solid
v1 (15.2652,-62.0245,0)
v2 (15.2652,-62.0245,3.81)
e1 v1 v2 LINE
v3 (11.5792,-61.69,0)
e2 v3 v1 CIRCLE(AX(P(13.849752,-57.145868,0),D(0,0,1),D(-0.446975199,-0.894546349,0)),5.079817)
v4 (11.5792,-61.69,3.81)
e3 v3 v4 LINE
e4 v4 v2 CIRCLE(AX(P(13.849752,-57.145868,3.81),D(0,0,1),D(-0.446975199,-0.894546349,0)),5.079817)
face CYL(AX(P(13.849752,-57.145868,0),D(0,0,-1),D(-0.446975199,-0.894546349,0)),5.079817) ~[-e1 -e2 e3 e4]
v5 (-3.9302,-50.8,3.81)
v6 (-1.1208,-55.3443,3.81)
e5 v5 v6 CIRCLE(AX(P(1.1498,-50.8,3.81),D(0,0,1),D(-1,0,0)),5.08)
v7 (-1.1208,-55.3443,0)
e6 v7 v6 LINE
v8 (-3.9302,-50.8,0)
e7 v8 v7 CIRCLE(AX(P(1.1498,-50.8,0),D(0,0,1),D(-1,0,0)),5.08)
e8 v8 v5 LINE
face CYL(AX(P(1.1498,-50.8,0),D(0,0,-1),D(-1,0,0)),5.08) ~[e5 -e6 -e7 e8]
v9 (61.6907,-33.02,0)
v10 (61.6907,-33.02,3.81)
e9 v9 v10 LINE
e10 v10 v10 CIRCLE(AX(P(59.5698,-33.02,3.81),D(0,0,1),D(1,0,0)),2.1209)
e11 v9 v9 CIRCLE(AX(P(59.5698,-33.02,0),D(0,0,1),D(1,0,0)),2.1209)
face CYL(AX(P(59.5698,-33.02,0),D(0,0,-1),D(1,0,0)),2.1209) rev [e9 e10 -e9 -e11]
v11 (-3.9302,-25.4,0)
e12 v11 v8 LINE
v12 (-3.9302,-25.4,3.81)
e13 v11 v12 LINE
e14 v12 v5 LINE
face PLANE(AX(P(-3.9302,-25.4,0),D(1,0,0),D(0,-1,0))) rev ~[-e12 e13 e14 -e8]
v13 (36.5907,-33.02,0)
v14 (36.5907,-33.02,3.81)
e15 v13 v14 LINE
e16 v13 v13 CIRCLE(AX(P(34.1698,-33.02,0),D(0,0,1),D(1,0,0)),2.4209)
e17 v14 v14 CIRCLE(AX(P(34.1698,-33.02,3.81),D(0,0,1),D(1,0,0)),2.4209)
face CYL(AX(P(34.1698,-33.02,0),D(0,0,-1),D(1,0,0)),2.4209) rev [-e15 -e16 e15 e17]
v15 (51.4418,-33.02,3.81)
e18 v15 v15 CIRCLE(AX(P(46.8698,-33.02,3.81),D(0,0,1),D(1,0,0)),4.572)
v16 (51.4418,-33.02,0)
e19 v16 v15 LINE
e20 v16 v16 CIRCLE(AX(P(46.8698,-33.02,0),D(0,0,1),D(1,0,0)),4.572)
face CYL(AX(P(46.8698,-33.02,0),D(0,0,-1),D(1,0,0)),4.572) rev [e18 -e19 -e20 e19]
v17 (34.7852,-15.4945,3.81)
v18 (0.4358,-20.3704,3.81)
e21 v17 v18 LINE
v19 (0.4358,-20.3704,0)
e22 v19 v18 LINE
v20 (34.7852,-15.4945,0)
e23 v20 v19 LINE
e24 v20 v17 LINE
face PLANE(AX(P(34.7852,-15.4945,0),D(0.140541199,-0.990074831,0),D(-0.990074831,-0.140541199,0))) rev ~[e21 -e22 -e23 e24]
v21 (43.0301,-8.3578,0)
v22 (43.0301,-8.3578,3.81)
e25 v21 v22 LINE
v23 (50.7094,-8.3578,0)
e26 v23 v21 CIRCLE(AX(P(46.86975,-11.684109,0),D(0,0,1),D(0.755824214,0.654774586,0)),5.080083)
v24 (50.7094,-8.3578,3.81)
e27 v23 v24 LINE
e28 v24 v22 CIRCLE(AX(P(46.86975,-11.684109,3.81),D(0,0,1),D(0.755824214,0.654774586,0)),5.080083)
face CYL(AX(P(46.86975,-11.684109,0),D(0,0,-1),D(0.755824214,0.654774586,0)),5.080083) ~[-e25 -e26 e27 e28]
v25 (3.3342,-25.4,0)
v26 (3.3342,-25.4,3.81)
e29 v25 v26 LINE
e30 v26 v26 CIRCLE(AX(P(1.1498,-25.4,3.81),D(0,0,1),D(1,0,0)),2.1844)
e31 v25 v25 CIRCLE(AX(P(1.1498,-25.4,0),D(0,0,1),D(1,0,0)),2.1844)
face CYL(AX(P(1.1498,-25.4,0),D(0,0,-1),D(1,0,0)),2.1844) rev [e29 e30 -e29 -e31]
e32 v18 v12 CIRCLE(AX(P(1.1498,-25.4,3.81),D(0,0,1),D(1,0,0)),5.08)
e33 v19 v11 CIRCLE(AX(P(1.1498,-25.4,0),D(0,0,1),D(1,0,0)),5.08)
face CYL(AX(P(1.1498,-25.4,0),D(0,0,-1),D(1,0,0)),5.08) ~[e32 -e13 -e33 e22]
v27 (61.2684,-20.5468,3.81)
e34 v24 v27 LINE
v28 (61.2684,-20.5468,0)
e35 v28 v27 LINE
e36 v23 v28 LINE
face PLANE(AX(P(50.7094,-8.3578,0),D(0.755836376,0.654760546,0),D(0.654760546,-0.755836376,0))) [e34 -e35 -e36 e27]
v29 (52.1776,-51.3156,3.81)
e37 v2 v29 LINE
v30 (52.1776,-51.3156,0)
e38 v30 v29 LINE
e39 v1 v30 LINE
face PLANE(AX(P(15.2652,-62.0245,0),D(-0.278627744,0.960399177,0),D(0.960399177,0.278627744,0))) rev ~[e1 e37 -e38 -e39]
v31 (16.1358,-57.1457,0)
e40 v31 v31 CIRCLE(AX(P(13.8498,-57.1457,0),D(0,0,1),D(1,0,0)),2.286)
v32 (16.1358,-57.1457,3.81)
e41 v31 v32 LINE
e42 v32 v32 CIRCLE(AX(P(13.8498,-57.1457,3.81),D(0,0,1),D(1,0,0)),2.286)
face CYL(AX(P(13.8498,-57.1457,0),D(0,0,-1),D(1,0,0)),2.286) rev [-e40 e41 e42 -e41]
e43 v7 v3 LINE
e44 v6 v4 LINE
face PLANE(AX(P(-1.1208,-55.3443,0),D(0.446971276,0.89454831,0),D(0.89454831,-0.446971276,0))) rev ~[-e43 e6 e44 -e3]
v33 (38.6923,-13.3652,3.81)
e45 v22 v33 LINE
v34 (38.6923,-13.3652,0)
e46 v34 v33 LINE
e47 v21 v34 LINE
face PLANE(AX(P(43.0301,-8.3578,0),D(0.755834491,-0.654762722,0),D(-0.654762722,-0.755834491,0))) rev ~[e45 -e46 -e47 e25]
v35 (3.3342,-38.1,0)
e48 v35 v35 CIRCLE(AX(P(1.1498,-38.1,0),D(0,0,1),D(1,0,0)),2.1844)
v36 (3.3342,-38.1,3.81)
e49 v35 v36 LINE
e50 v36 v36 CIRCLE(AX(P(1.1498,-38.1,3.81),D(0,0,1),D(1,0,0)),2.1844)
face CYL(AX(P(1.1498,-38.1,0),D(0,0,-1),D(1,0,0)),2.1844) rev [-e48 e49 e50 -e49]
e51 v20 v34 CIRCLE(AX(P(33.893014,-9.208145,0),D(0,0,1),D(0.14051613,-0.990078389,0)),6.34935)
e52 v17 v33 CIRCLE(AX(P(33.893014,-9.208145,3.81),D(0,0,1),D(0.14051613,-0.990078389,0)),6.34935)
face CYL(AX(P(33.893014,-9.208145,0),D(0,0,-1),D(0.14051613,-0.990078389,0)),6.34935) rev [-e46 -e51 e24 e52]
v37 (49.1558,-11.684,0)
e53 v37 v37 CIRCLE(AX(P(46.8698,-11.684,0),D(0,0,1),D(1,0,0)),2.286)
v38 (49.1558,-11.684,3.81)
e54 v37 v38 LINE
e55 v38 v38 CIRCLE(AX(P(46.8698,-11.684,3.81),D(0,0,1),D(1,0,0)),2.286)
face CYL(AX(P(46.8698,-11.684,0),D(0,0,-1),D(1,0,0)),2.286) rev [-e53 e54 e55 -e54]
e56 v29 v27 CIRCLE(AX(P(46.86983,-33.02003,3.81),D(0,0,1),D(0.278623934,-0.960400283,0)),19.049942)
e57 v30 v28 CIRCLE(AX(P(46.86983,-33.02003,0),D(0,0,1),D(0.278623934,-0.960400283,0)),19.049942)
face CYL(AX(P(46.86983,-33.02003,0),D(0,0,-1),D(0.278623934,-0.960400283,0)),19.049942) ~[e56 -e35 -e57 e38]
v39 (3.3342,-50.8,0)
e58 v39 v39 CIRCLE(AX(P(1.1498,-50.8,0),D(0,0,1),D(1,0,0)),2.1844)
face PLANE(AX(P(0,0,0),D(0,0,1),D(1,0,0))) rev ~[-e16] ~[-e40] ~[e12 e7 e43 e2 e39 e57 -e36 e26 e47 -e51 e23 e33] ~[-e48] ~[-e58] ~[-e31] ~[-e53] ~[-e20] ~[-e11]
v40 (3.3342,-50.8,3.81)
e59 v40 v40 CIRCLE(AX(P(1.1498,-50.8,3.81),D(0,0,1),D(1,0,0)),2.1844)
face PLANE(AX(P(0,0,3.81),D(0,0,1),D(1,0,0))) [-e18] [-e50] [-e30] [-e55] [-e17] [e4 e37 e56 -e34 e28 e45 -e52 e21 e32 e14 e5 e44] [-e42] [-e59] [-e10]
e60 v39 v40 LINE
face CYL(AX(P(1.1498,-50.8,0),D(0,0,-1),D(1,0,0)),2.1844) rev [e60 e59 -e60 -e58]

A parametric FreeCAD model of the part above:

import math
import FreeCAD as App
import Part
import Sketcher
Q = App.Units.Quantity

doc = App.newDocument("Part")
body = doc.addObject("PartDesign::Body", "Body")

# Sketch on XY plane
sketch1 = body.newObject("Sketcher::SketchObject", "Sketch")
sketch1.AttachmentSupport = (doc.getObject("XY_Plane"), [""])
sketch1.MapMode = "FlatFace"
sketch1.addGeometry([
    Part.ArcOfCircle(Part.Circle(App.Vector(1.1498, -25.4, 0), App.Vector(0, 0, 1), 5.08), math.radians(98.079699), math.radians(180)),  # 0
    Part.LineSegment(App.Vector(-3.9302, -25.4, 0), App.Vector(-3.9302, -50.8, 0)),  # 1
    Part.ArcOfCircle(Part.Circle(App.Vector(1.1498, -50.8, 0), App.Vector(0, 0, 1), 5.08), math.radians(180), math.radians(243.450585)),  # 2
    Part.LineSegment(App.Vector(-1.1208, -55.3443, 0), App.Vector(11.5792, -61.69, 0)),  # 3
    Part.ArcOfCircle(Part.Circle(App.Vector(13.8498, -57.1457, 0), App.Vector(0, 0, 1), 5.079965), math.radians(-116.549415), math.radians(-73.821905)),  # 4
    Part.LineSegment(App.Vector(15.2652, -62.0245, 0), App.Vector(52.1776, -51.3156, 0)),  # 5
    Part.ArcOfCircle(Part.Circle(App.Vector(46.8698, -33.02, 0), App.Vector(0, 0, 1), 19.049945), math.radians(-73.821844), math.radians(40.901686)),  # 6
    Part.LineSegment(App.Vector(61.2684, -20.5468, 0), App.Vector(50.7094, -8.3578, 0)),  # 7
    Part.ArcOfCircle(Part.Circle(App.Vector(46.8698, -11.684, 0), App.Vector(0, 0, 1), 5.080049), math.radians(40.901996), math.radians(139.098742)),  # 8
    Part.LineSegment(App.Vector(43.0301, -8.3578, 0), App.Vector(38.6923, -13.3652, 0)),  # 9
    Part.ArcOfCircle(Part.Circle(App.Vector(33.8928, -9.2075, 0), App.Vector(0, 0, 1), 6.350019), math.radians(-81.921194), math.radians(-40.901655)),  # 10
    Part.LineSegment(App.Vector(34.7852, -15.4945, 0), App.Vector(0.4358, -20.3704, 0)),  # 11
    Part.Circle(App.Vector(1.1498, -50.8, 0), App.Vector(0, 0, 1), 2.1844),  # 12
    Part.Circle(App.Vector(1.1498, -38.1, 0), App.Vector(0, 0, 1), 2.1844),  # 13
    Part.Circle(App.Vector(1.1498, -25.4, 0), App.Vector(0, 0, 1), 2.1844),  # 14
    Part.Circle(App.Vector(46.8698, -33.02, 0), App.Vector(0, 0, 1), 4.572),  # 15
    Part.Circle(App.Vector(59.5698, -33.02, 0), App.Vector(0, 0, 1), 2.1209),  # 16
    Part.Circle(App.Vector(46.8698, -11.684, 0), App.Vector(0, 0, 1), 2.286),  # 17
    Part.Circle(App.Vector(13.8498, -57.1457, 0), App.Vector(0, 0, 1), 2.286),  # 18
    Part.Circle(App.Vector(34.1698, -33.02, 0), App.Vector(0, 0, 1), 2.4209),  # 19
], False)
sketch1.addConstraint([
    Sketcher.Constraint("Tangent", 0, 2, 1, 1),
    Sketcher.Constraint("Tangent", 1, 2, 2, 1),
    Sketcher.Constraint("Tangent", 2, 2, 3, 1),
    Sketcher.Constraint("Tangent", 3, 2, 4, 1),
    Sketcher.Constraint("Tangent", 4, 2, 5, 1),
    Sketcher.Constraint("Tangent", 5, 2, 6, 1),
    Sketcher.Constraint("Tangent", 6, 2, 7, 1),
    Sketcher.Constraint("Tangent", 7, 2, 8, 1),
    Sketcher.Constraint("Tangent", 8, 2, 9, 1),
    Sketcher.Constraint("Tangent", 9, 2, 10, 2),
    Sketcher.Constraint("Tangent", 10, 1, 11, 1),
    Sketcher.Constraint("Tangent", 11, 2, 0, 1),
    Sketcher.Constraint("Vertical", 1),
    Sketcher.Constraint("Coincident", 12, 3, 2, 3),
    Sketcher.Constraint("Coincident", 14, 3, 0, 3),
    Sketcher.Constraint("Coincident", 15, 3, 6, 3),
    Sketcher.Constraint("Coincident", 17, 3, 8, 3),
    Sketcher.Constraint("Coincident", 18, 3, 4, 3),
    Sketcher.Constraint("Equal", 0, 2),
    Sketcher.Constraint("Equal", 2, 4),
    Sketcher.Constraint("Equal", 4, 8),
    Sketcher.Constraint("Equal", 12, 13),
    Sketcher.Constraint("Equal", 13, 14),
    Sketcher.Constraint("Equal", 17, 18),
    Sketcher.Constraint("Horizontal", 15, 3, 16, 3),
    Sketcher.Constraint("Horizontal", 16, 3, 19, 3),
    Sketcher.Constraint("Horizontal", 7, 2, 8, 2),
    Sketcher.Constraint("Vertical", 6, 3, 8, 3),
    Sketcher.Constraint("Vertical", 12, 3, 13, 3),
    Sketcher.Constraint("Radius", 0, Q("0.2 in")),
    Sketcher.Constraint("Diameter", 15, Q("0.36 in")),
    Sketcher.Constraint("Diameter", 17, Q("0.18 in")),
    Sketcher.Constraint("Radius", 6, Q("0.75 in")),
    Sketcher.Constraint("Radius", 10, Q("0.25 in")),
    Sketcher.Constraint("DistanceY", 13, 3, -1, 1, Q("1.5 in")),
    Sketcher.Constraint("DistanceX", 2, 3, 4, 3, Q("0.5 in")),
    Sketcher.Constraint("DistanceX", 0, 3, 6, 3, Q("1.8 in")),
    Sketcher.Constraint("DistanceY", 6, 3, 0, 3, Q("0.3 in")),
    Sketcher.Constraint("DistanceY", 2, 3, 13, 3, Q("0.5 in")),
    Sketcher.Constraint("DistanceY", 13, 3, 0, 3, Q("0.5 in")),
    Sketcher.Constraint("DistanceX", 6, 3, 16, 3, Q("0.5 in")),
    Sketcher.Constraint("DistanceX", 19, 3, 6, 3, Q("0.5 in")),
    Sketcher.Constraint("Diameter", 12, Q("0.172 in")),
    Sketcher.Constraint("Diameter", 16, Q("0.167 in")),
    Sketcher.Constraint("Diameter", 19, Q("4.8418 mm")),
    Sketcher.Constraint("DistanceY", 8, 3, -1, 1, Q("0.46 in")),
    Sketcher.Constraint("Angle", 3, Q("-26.5495 deg")),
    Sketcher.Constraint("Angle", 11, Q("-171.9208 deg")),
    Sketcher.Constraint("DistanceX", -1, 1, 4, 2, Q("0.601 in")),
])
pad1 = body.newObject("PartDesign::Pad", "Pad")
pad1.Profile = sketch1
pad1.Length = Q("0.15 in")

doc.recompute()
